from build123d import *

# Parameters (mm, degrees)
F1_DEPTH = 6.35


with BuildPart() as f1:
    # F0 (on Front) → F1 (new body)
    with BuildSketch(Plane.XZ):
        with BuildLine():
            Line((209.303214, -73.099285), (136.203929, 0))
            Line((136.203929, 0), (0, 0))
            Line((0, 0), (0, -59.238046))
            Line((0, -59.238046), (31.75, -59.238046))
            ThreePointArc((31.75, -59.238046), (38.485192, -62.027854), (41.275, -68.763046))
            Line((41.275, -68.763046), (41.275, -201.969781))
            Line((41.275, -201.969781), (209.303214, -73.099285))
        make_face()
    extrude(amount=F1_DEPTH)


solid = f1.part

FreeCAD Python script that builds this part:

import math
import FreeCAD as App
import Part
import Sketcher
from FreeCAD import Vector
Q = App.Units.Quantity

doc = App.newDocument("Part")
body = doc.addObject("PartDesign::Body", "Body")

# Sketch on XZ plane
sketch1 = body.newObject("Sketcher::SketchObject", "Sketch")
sketch1.AttachmentSupport = (doc.getObject("XZ_Plane"), [""])
sketch1.MapMode = "FlatFace"
sketch1.addGeometry([
    Part.LineSegment(Vector(209, -73, 0), Vector(136, 0, 0)),  # 0
    Part.LineSegment(Vector(136, 0, 0), Vector(0, 0, 0)),  # 1
    Part.LineSegment(Vector(0, 0, 0), Vector(0, -59, 0)),  # 2
    Part.LineSegment(Vector(0, -59, 0), Vector(32, -59, 0)),  # 3
    Part.ArcOfCircle(Part.Circle(Vector(32, -69, 0), Vector(0, 0, 1), 10), math.radians(0), math.radians(90)),  # 4
    Part.LineSegment(Vector(41, -69, 0), Vector(41, -202, 0)),  # 5
    Part.LineSegment(Vector(41, -202, 0), Vector(209, -73, 0)),  # 6
], False)
sketch1.addConstraint([
    Sketcher.Constraint("Coincident", 0, 2, 1, 1),
    Sketcher.Constraint("Coincident", 1, 2, 2, 1),
    Sketcher.Constraint("Coincident", 2, 2, 3, 1),
    Sketcher.Constraint("Tangent", 3, 2, 4, 2),
    Sketcher.Constraint("Tangent", 4, 1, 5, 1),
    Sketcher.Constraint("Coincident", 5, 2, 6, 1),
    Sketcher.Constraint("Coincident", 6, 2, 0, 1),
    Sketcher.Constraint("Horizontal", 1),
    Sketcher.Constraint("Vertical", 2),
    Sketcher.Constraint("Horizontal", 3),
    Sketcher.Constraint("Vertical", 5),
    Sketcher.Constraint("Coincident", 1, 2, -1, 1),
    Sketcher.Constraint("Angle", 0, Q("135 deg")),
    Sketcher.Constraint("Radius", 4, Q("0.375 in")),
    Sketcher.Constraint("DistanceX", 3, 1, 3, 2, Q("1.25 in")),
    Sketcher.Constraint("Distance", 0, Q("4.07 in")),
    Sketcher.Constraint("DistanceX", 1, 2, 1, 1, Q("136.203929 mm")),
    Sketcher.Constraint("DistanceY", 2, 2, 2, 1, Q("59.238046 mm")),
    Sketcher.Constraint("DistanceY", 5, 2, 5, 1, Q("133.206735 mm")),
])
pad1 = body.newObject("PartDesign::Pad", "Pad")
pad1.Profile = sketch1
pad1.Length = Q("0.25 in")

doc.recompute()
